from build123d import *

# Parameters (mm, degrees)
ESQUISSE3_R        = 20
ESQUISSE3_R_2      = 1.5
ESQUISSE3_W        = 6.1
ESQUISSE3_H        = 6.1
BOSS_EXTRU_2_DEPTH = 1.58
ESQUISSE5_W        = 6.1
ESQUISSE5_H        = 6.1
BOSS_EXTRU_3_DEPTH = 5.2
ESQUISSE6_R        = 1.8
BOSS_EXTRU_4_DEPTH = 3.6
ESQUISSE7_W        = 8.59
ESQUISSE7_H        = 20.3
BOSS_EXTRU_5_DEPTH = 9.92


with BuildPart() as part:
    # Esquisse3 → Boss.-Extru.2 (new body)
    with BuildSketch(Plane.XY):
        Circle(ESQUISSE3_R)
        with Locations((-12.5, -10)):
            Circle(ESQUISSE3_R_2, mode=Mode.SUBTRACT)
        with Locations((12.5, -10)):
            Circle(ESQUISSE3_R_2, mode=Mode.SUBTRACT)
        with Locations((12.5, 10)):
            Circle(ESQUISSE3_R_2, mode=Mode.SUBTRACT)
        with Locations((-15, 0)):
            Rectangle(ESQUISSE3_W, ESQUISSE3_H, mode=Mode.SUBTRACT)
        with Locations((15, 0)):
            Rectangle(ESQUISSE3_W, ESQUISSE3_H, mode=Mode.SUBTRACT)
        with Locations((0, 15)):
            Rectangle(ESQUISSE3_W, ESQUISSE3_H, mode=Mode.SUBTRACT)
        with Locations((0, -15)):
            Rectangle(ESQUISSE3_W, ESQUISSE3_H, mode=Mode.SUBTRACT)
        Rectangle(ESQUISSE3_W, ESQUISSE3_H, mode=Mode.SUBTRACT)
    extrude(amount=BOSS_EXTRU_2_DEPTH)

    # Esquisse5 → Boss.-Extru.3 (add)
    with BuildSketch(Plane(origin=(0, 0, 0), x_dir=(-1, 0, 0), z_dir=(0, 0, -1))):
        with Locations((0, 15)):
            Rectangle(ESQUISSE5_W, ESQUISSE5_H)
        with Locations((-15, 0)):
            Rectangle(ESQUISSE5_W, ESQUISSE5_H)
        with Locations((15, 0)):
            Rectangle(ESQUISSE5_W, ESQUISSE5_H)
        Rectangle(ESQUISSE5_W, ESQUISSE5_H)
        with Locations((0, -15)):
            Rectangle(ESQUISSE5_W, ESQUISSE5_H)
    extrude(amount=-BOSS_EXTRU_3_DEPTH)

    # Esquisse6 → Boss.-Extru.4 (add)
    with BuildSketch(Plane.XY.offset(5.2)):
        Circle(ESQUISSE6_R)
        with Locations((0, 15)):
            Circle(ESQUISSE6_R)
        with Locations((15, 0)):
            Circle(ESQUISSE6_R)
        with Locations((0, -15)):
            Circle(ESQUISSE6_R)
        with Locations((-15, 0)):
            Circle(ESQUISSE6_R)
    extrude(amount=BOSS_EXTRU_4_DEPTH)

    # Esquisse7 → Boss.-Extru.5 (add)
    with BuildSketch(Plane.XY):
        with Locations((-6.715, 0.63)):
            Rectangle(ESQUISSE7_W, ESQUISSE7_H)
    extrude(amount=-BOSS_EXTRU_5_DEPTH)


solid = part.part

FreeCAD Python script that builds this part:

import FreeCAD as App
import Part
import Sketcher

V = App.Vector
Q = App.Units.Quantity


def add_polygon(sketch, points):
    """Adds a closed chain of lines whose ends are joined by coincident constraints."""
    first, n = sketch.GeometryCount, len(points)
    for a, b in zip(points, points[1:] + points[:1]):
        sketch.addGeometry(Part.LineSegment(App.Vector(*a, 0), App.Vector(*b, 0)), False)
    for i in range(n):
        sketch.addConstraint(Sketcher.Constraint("Coincident", first + i, 2, first + (i + 1) % n, 1))

doc = App.newDocument("Part")
body = doc.addObject("PartDesign::Body", "Body")

# Sketch on XY plane
sketch1 = body.newObject("Sketcher::SketchObject", "Sketch")
sketch1.AttachmentSupport = (doc.getObject("XY_Plane"), [""])
sketch1.MapMode = "FlatFace"
sketch1.addGeometry(Part.Circle(V(0, 0, 0), V(0, 0, 1), 20), False)  # 0
sketch1.addGeometry(Part.Circle(V(-12.5, -10, 0), V(0, 0, 1), 1.5), False)  # 1
add_polygon(sketch1, [(3, -18.1), (-3, -18.1), (-3, -11.9), (3, -11.9)])  # lines 2-5
sketch1.addGeometry(Part.Circle(V(12.5, -10, 0), V(0, 0, 1), 1.5), False)  # 6
add_polygon(sketch1, [(-11.9, -3), (-18.1, -3), (-18.1, 3), (-11.9, 3)])  # lines 7-10
add_polygon(sketch1, [(3, -3), (-3, -3), (-3, 3), (3, 3)])  # lines 11-14
add_polygon(sketch1, [(18.1, -3), (11.9, -3), (11.9, 3), (18.1, 3)])  # lines 15-18
add_polygon(sketch1, [(3, 11.9), (-3, 11.9), (-3, 18.1), (3, 18.1)])  # lines 19-22
sketch1.addGeometry(Part.Circle(V(12.5, 10, 0), V(0, 0, 1), 1.5), False)  # 23
sketch1.addConstraint([
    Sketcher.Constraint("Horizontal", 2),
    Sketcher.Constraint("Vertical", 3),
    Sketcher.Constraint("Horizontal", 4),
    Sketcher.Constraint("Vertical", 5),
    Sketcher.Constraint("Horizontal", 7),
    Sketcher.Constraint("Vertical", 8),
    Sketcher.Constraint("Horizontal", 9),
    Sketcher.Constraint("Vertical", 10),
    Sketcher.Constraint("Horizontal", 11),
    Sketcher.Constraint("Vertical", 12),
    Sketcher.Constraint("Horizontal", 13),
    Sketcher.Constraint("Vertical", 14),
    Sketcher.Constraint("Horizontal", 15),
    Sketcher.Constraint("Vertical", 16),
    Sketcher.Constraint("Horizontal", 17),
    Sketcher.Constraint("Vertical", 18),
    Sketcher.Constraint("Horizontal", 19),
    Sketcher.Constraint("Vertical", 20),
    Sketcher.Constraint("Horizontal", 21),
    Sketcher.Constraint("Vertical", 22),
    Sketcher.Constraint("Coincident", 0, 3, -1, 1),
    Sketcher.Constraint("Equal", 1, 6),
    Sketcher.Constraint("Equal", 6, 23),
    Sketcher.Constraint("Symmetric", 1, 3, 23, 3, -1, 1),
    Sketcher.Constraint("Symmetric", 11, 2, 13, 2, -1, 1),
    Sketcher.Constraint("Symmetric", 9, 2, 15, 2, -1, 1),
    Sketcher.Constraint("Symmetric", 7, 2, 17, 2, -1, 1),
    Sketcher.Constraint("Symmetric", 4, 2, 19, 2, -1, 1),
    Sketcher.Constraint("Symmetric", 2, 2, 21, 2, -1, 1),
    Sketcher.Constraint("Symmetric", 1, 3, 6, 3, -2),
    Sketcher.Constraint("Horizontal", 10, 2, 11, 2),
    Sketcher.Constraint("Horizontal", 9, 2, 12, 2),
    Sketcher.Constraint("Vertical", 3, 2, 11, 2),
    Sketcher.Constraint("Vertical", 5, 2, 13, 2),
    Sketcher.Constraint("Equal", 4, 7),
    Sketcher.Constraint("Equal", 21, 3),
    Sketcher.Constraint("Equal", 5, 8),
    Sketcher.Constraint("Diameter", 0, Q("40 mm")),
    Sketcher.Constraint("Diameter", 1, Q("3 mm")),
    Sketcher.Constraint("DistanceX", 2, 2, 2, 1, Q("6.1 mm")),
    Sketcher.Constraint("DistanceY", 1, 3, -1, 1, Q("10 mm")),
    Sketcher.Constraint("DistanceX", 1, 3, 6, 3, Q("25 mm")),
    Sketcher.Constraint("DistanceX", 7, 2, 3, 2, Q("15 mm")),
    Sketcher.Constraint("DistanceY", 2, 2, 7, 2, Q("15 mm")),
])
pad1 = body.newObject("PartDesign::Pad", "Pad")
pad1.Profile = sketch1
pad1.Length = 1.58

# Sketch on XY plane
sketch2 = body.newObject("Sketcher::SketchObject", "Sketch001")
sketch2.AttachmentSupport = (doc.getObject("XY_Plane"), [""])
sketch2.MapMode = "FlatFace"
add_polygon(sketch2, [(3, 18), (3, 12), (-3, 12), (-3, 18)])  # lines 0-3
add_polygon(sketch2, [(18, 3), (18, -3), (12, -3), (12, 3)])  # lines 4-7
add_polygon(sketch2, [(-12, 3), (-12, -3), (-18, -3), (-18, 3)])  # lines 8-11
add_polygon(sketch2, [(3, 3), (3, -3), (-3, -3), (-3, 3)])  # lines 12-15
add_polygon(sketch2, [(3, -12), (3, -18), (-3, -18), (-3, -12)])  # lines 16-19
sketch2.addConstraint([
    Sketcher.Constraint("Vertical", 0),
    Sketcher.Constraint("Horizontal", 1),
    Sketcher.Constraint("Vertical", 2),
    Sketcher.Constraint("Horizontal", 3),
    Sketcher.Constraint("Vertical", 4),
    Sketcher.Constraint("Horizontal", 5),
    Sketcher.Constraint("Vertical", 6),
    Sketcher.Constraint("Horizontal", 7),
    Sketcher.Constraint("Vertical", 8),
    Sketcher.Constraint("Horizontal", 9),
    Sketcher.Constraint("Vertical", 10),
    Sketcher.Constraint("Horizontal", 11),
    Sketcher.Constraint("Vertical", 12),
    Sketcher.Constraint("Horizontal", 13),
    Sketcher.Constraint("Vertical", 14),
    Sketcher.Constraint("Horizontal", 15),
    Sketcher.Constraint("Vertical", 16),
    Sketcher.Constraint("Horizontal", 17),
    Sketcher.Constraint("Vertical", 18),
    Sketcher.Constraint("Horizontal", 19),
    Sketcher.Constraint("Symmetric", 6, 2, 8, 2, -1, 1),
    Sketcher.Constraint("Symmetric", 4, 2, 10, 2, -1, 1),
    Sketcher.Constraint("Symmetric", 12, 2, 14, 2, -1, 1),
    Sketcher.Constraint("Symmetric", 2, 2, 16, 2, -1, 1),
    Sketcher.Constraint("Symmetric", 0, 2, 18, 2, -1, 1),
    Sketcher.Constraint("Horizontal", 5, 2, 8, 2),
    Sketcher.Constraint("Horizontal", 9, 2, 12, 2),
    Sketcher.Constraint("Vertical", 3, 2, 12, 2),
    Sketcher.Constraint("Vertical", 2, 2, 13, 2),
    Sketcher.Constraint("Equal", 3, 5),
    Sketcher.Constraint("Equal", 19, 0),
    Sketcher.Constraint("Equal", 2, 4),
    Sketcher.Constraint("DistanceX", 1, 2, 1, 1, Q("6.1 mm")),
    Sketcher.Constraint("DistanceX", 0, 2, 4, 2, Q("15 mm")),
    Sketcher.Constraint("DistanceY", 4, 2, 0, 2, Q("15 mm")),
])
pad2 = body.newObject("PartDesign::Pad", "Pad001")
pad2.Profile = sketch2
pad2.Length = 5.2

# Sketch on XY plane
sketch3 = body.newObject("Sketcher::SketchObject", "Sketch002")
sketch3.AttachmentSupport = (doc.getObject("XY_Plane"), [""])
sketch3.MapMode = "FlatFace"
sketch3.AttachmentOffset = App.Placement(V(0, 0, 5.2), App.Rotation())
sketch3.addGeometry([
    Part.Circle(V(0, 0, 0), V(0, 0, 1), 1.8),  # 0
    Part.Circle(V(0, 15, 0), V(0, 0, 1), 1.8),  # 1
    Part.Circle(V(15, 0, 0), V(0, 0, 1), 1.8),  # 2
    Part.Circle(V(0, -15, 0), V(0, 0, 1), 1.8),  # 3
    Part.Circle(V(-15, 0, 0), V(0, 0, 1), 1.8),  # 4
], False)
sketch3.addConstraint([
    Sketcher.Constraint("Coincident", 0, 3, -1, 1),
    Sketcher.Constraint("Equal", 0, 1),
    Sketcher.Constraint("Equal", 1, 2),
    Sketcher.Constraint("Equal", 2, 3),
    Sketcher.Constraint("Equal", 3, 4),
    Sketcher.Constraint("Symmetric", 1, 3, 3, 3, -1, 1),
    Sketcher.Constraint("Symmetric", 2, 3, 4, 3, -1, 1),
    Sketcher.Constraint("PointOnObject", 1, 3, -2),
    Sketcher.Constraint("PointOnObject", 2, 3, -1),
    Sketcher.Constraint("Diameter", 0, Q("3.6 mm")),
    Sketcher.Constraint("DistanceY", -1, 1, 1, 3, Q("15 mm")),
    Sketcher.Constraint("DistanceX", -1, 1, 2, 3, Q("15 mm")),
])
pad3 = body.newObject("PartDesign::Pad", "Pad002")
pad3.Profile = sketch3
pad3.Length = 3.6

# Sketch on XY plane
sketch4 = body.newObject("Sketcher::SketchObject", "Sketch003")
sketch4.AttachmentSupport = (doc.getObject("XY_Plane"), [""])
sketch4.MapMode = "FlatFace"
add_polygon(sketch4, [(-11, 11), (-11, -10), (-2, -10), (-2, 11)])  # lines 0-3
sketch4.addConstraint([
    Sketcher.Constraint("Vertical", 0),
    Sketcher.Constraint("Horizontal", 1),
    Sketcher.Constraint("Vertical", 2),
    Sketcher.Constraint("Horizontal", 3),
    Sketcher.Constraint("DistanceY", 0, 2, 0, 1, Q("20.3 mm")),
    Sketcher.Constraint("DistanceX", 1, 1, 1, 2, Q("8.59 mm")),
    Sketcher.Constraint("DistanceX", 0, 2, -1, 1, Q("11.01 mm")),
    Sketcher.Constraint("DistanceY", 0, 2, -1, 1, Q("9.52 mm")),
])
pad4 = body.newObject("PartDesign::Pad", "Pad003")
pad4.Profile = sketch4
pad4.Length = 9.92
pad4.Reversed = True

doc.recompute()
